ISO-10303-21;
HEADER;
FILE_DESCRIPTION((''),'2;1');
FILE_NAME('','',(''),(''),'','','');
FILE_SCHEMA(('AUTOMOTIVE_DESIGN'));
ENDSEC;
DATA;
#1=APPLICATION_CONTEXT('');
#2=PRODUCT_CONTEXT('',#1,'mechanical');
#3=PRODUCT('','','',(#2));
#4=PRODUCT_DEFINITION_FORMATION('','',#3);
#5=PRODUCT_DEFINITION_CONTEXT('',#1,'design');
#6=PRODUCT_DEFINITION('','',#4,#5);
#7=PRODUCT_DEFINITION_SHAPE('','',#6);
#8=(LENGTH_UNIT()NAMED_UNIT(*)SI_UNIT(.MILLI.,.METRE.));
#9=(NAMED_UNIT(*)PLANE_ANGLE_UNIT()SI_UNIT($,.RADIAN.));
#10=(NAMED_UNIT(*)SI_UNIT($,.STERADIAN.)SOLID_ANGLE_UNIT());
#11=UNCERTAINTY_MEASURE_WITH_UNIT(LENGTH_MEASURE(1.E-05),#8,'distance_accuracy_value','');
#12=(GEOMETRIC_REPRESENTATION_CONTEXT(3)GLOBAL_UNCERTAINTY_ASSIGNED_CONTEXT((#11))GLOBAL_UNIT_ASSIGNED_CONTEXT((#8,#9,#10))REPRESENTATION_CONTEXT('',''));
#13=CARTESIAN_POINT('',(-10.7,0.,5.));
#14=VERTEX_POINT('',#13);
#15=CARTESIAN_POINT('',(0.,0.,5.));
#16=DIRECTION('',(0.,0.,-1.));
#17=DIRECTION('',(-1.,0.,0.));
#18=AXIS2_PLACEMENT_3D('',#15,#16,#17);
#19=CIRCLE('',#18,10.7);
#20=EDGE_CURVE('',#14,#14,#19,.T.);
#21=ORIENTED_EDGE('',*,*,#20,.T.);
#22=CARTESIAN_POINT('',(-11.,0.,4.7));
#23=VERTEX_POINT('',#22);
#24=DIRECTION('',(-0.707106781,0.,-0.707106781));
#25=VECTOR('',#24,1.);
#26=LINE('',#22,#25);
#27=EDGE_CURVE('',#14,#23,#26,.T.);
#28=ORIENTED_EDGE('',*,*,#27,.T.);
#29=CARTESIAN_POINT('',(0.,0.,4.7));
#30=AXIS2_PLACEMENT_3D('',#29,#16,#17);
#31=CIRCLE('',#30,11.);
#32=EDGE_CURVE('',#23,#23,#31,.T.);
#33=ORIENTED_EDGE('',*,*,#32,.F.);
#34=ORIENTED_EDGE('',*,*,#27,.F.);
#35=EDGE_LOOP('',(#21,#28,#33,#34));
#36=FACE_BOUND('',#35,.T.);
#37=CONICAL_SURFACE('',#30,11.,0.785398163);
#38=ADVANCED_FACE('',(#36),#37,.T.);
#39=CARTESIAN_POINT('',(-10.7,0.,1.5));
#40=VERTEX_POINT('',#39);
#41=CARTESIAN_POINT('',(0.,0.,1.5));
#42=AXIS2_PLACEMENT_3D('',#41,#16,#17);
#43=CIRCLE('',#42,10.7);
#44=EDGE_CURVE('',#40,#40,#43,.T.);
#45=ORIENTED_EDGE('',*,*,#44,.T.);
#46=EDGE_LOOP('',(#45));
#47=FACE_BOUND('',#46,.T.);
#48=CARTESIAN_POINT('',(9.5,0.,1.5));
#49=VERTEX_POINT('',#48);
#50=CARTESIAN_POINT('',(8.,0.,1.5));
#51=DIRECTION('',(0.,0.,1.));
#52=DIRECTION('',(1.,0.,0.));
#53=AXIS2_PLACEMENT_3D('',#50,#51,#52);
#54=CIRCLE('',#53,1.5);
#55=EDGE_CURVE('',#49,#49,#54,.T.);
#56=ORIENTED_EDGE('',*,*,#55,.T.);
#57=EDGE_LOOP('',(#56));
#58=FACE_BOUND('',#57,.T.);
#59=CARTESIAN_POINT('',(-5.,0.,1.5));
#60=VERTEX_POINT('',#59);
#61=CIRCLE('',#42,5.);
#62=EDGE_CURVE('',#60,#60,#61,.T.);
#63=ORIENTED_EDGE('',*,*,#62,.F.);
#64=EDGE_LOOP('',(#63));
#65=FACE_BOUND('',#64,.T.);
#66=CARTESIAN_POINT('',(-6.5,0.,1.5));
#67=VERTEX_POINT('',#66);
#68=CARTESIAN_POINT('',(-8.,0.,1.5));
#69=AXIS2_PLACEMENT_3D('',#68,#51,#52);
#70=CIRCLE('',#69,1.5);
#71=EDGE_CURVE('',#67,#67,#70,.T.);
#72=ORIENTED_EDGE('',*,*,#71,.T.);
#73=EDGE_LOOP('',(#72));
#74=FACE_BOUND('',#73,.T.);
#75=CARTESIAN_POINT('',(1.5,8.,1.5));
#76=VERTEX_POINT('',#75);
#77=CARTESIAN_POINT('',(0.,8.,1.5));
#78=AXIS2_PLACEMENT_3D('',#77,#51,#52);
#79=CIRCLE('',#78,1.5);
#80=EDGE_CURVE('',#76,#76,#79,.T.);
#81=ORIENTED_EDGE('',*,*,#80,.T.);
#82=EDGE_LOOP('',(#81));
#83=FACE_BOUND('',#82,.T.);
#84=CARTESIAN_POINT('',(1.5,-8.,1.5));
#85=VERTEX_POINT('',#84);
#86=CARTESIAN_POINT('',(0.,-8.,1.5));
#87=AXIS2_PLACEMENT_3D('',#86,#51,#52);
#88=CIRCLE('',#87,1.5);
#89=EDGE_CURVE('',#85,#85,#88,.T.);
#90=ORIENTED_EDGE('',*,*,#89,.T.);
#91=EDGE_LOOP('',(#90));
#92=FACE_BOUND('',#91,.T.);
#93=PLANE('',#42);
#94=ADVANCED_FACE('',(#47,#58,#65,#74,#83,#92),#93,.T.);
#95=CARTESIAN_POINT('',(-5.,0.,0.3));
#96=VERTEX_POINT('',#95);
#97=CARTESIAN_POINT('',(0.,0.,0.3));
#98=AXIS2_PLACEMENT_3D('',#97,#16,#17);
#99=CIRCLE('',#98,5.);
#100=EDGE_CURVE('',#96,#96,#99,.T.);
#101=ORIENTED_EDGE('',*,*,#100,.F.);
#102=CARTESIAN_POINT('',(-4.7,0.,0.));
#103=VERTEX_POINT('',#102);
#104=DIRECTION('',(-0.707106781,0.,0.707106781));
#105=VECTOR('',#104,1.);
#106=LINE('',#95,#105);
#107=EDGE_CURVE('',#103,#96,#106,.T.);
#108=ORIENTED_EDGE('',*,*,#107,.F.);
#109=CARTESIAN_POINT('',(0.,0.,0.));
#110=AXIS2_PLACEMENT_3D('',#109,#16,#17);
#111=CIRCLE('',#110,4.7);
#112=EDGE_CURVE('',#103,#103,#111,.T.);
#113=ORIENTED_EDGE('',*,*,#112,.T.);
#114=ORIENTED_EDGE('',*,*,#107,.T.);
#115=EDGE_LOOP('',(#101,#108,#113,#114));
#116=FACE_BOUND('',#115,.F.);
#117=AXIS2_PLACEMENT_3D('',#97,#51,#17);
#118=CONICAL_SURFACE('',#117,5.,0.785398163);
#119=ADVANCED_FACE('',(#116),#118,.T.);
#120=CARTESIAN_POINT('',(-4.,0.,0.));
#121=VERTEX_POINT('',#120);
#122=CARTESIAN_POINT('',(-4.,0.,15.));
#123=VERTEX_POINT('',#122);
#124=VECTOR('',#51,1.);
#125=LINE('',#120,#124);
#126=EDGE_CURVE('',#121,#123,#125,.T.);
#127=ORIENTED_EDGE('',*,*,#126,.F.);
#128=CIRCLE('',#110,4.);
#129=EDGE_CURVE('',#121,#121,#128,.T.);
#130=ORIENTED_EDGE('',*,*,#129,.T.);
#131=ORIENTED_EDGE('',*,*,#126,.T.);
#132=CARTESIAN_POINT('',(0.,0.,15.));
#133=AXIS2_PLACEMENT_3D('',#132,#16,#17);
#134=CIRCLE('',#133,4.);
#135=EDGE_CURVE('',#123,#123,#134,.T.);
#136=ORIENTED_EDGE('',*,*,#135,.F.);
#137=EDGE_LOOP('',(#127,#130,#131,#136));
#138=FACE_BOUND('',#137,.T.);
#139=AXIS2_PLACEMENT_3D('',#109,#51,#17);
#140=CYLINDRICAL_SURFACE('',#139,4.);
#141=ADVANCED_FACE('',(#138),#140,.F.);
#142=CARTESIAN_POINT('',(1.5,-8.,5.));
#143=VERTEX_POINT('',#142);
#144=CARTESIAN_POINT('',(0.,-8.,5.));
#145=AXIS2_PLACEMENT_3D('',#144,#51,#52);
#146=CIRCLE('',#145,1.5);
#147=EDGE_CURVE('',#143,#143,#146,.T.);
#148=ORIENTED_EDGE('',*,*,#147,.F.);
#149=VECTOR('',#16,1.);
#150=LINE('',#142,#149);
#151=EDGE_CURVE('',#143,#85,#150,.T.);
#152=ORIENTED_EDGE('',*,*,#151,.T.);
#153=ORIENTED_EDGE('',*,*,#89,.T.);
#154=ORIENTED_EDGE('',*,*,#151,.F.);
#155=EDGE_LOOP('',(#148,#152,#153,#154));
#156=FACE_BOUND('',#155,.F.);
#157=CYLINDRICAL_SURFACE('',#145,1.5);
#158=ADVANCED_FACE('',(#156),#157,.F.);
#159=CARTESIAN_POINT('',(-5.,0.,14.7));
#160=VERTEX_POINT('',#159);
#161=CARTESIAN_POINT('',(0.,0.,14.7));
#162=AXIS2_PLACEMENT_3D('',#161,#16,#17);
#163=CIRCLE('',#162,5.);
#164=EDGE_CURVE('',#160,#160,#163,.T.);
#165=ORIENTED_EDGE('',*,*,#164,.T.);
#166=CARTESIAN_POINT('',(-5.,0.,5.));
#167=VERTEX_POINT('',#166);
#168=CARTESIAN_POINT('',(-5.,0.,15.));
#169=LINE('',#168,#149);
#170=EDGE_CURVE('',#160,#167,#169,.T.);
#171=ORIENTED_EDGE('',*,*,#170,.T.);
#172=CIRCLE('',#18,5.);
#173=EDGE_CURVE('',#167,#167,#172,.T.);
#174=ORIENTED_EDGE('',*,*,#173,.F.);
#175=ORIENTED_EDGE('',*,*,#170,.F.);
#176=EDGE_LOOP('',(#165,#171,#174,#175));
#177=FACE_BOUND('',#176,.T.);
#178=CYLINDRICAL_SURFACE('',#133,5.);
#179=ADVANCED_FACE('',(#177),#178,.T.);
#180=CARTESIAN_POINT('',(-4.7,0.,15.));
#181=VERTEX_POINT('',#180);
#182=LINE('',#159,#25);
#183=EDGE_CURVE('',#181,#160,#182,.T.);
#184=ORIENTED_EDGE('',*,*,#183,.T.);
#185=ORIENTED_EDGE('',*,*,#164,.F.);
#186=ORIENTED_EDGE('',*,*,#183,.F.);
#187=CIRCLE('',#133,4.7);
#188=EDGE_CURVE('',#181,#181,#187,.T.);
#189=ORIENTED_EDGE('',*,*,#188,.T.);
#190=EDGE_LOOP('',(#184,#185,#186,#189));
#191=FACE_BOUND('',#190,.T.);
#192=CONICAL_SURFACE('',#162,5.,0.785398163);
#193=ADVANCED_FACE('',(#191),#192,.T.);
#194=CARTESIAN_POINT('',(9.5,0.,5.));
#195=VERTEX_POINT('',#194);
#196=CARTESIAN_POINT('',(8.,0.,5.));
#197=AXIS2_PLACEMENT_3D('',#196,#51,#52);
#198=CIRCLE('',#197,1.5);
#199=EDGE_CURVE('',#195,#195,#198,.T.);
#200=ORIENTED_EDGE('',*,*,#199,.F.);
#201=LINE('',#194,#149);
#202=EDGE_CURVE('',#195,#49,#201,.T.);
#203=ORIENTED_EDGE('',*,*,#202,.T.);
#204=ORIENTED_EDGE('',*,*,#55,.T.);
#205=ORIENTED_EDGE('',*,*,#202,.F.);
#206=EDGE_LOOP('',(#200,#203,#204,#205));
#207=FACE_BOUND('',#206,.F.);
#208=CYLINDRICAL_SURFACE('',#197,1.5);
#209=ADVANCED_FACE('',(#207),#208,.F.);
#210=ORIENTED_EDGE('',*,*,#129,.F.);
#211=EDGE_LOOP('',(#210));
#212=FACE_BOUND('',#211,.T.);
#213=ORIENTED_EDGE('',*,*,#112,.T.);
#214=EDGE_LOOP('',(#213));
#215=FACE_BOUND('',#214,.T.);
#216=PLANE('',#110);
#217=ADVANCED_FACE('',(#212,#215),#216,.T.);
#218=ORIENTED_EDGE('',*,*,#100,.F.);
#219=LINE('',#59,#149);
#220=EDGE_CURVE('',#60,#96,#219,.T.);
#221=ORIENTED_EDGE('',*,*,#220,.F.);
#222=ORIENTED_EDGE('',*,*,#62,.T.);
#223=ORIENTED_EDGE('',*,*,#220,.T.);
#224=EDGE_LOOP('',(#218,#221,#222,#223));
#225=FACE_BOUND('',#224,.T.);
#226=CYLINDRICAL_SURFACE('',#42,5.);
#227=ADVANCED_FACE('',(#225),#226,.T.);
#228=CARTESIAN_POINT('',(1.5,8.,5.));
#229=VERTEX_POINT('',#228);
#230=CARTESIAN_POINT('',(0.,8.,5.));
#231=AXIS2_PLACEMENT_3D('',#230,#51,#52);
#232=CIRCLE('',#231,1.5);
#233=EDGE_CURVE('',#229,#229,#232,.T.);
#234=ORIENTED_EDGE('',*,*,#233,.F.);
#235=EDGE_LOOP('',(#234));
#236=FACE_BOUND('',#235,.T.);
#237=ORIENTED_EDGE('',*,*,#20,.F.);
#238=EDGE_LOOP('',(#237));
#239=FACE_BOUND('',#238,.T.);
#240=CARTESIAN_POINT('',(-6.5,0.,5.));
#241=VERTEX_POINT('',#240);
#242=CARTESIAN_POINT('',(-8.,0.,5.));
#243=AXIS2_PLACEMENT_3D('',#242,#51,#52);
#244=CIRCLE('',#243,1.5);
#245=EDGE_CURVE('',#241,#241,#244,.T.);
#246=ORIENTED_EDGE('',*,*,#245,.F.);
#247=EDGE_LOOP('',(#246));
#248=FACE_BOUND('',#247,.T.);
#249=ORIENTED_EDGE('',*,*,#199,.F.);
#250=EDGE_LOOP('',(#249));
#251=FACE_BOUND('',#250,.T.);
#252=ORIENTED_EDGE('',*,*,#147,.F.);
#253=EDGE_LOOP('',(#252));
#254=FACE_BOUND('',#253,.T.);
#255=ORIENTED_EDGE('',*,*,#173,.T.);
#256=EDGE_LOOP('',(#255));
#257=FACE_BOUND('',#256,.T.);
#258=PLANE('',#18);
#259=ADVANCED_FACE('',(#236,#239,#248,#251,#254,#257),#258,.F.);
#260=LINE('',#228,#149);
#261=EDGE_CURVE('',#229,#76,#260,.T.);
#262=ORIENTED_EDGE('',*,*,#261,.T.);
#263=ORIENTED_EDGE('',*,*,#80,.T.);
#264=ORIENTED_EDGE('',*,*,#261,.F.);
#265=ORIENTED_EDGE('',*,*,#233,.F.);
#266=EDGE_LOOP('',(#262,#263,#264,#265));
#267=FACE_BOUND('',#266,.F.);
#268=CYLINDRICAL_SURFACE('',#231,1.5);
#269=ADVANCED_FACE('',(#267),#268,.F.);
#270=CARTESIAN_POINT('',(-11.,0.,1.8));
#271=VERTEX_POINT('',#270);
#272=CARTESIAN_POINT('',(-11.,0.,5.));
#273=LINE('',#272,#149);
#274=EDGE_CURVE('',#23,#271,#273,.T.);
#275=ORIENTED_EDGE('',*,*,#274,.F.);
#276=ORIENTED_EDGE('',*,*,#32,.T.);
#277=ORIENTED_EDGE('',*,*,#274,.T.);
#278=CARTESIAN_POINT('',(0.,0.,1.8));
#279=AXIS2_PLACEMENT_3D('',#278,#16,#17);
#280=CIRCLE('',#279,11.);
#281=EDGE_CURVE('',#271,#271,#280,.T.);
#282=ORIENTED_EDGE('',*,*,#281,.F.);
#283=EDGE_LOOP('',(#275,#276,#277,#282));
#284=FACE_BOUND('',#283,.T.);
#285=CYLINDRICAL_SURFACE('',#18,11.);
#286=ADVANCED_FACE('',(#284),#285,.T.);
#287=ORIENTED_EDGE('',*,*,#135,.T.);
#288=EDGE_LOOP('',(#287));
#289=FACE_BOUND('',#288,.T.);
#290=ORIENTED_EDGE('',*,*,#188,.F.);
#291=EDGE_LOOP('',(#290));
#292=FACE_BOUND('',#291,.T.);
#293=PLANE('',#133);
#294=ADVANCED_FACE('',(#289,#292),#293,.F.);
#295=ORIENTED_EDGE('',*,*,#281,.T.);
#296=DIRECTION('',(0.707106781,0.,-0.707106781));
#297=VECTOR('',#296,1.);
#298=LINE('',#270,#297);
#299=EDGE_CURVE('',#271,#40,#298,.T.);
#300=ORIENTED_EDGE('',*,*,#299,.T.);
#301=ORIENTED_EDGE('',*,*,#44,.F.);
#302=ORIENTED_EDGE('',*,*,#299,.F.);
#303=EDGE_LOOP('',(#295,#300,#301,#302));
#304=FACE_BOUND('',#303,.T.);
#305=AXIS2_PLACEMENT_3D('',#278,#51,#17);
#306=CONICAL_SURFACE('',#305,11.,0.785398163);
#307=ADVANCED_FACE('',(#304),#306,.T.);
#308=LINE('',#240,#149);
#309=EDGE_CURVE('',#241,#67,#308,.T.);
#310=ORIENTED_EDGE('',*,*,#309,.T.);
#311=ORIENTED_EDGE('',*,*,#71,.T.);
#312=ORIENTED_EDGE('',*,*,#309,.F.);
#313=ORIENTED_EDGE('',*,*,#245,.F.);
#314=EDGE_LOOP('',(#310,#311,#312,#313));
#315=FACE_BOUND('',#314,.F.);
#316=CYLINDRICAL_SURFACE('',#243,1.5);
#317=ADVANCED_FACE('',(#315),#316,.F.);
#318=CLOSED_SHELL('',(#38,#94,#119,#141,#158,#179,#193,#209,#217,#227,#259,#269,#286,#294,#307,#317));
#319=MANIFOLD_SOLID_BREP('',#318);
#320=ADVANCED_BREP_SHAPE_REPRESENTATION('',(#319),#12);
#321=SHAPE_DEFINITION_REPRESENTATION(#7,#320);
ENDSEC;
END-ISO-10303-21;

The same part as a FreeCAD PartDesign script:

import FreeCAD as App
import Part
import Sketcher
from FreeCAD import Vector
Q = App.Units.Quantity


def edges_at(feature, points):
    """Names of the edges that pass closest to the given points."""
    edges = feature.Shape.Edges
    near = lambda p: min(range(len(edges)), key=lambda i: edges[i].distToShape(Part.Vertex(*p))[0])
    return sorted({f"Edge{near(p) + 1}" for p in points})

doc = App.newDocument("Part")
body = doc.addObject("PartDesign::Body", "Body")

sketch1 = body.newObject("Sketcher::SketchObject", "Sketch")
sketch1.AttachmentSupport = (doc.getObject("XZ_Plane"), [""])
sketch1.MapMode = "FlatFace"
sketch1.addGeometry(Part.LineSegment(Vector(-5, 0, 0), Vector(-4, 0, 0)), False)
sketch1.addGeometry(Part.LineSegment(Vector(-4, 0, 0), Vector(-4, 15, 0)), False)
sketch1.addGeometry(Part.LineSegment(Vector(-4, 15, 0), Vector(-5, 15, 0)), False)
sketch1.addGeometry(Part.LineSegment(Vector(-5, 15, 0), Vector(-5, 5, 0)), False)
sketch1.addGeometry(Part.LineSegment(Vector(-5, 5, 0), Vector(-11, 5, 0)), False)
sketch1.addGeometry(Part.LineSegment(Vector(-11, 5, 0), Vector(-11, 1.5, 0)), False)
sketch1.addGeometry(Part.LineSegment(Vector(-11, 1.5, 0), Vector(-5, 1.5, 0)), False)
sketch1.addGeometry(Part.LineSegment(Vector(-5, 1.5, 0), Vector(-5, 0, 0)), False)
sketch1.addConstraint(Sketcher.Constraint("Coincident", 0, 2, 1, 1))
sketch1.addConstraint(Sketcher.Constraint("Coincident", 1, 2, 2, 1))
sketch1.addConstraint(Sketcher.Constraint("Coincident", 2, 2, 3, 1))
sketch1.addConstraint(Sketcher.Constraint("Coincident", 3, 2, 4, 1))
sketch1.addConstraint(Sketcher.Constraint("Coincident", 4, 2, 5, 1))
sketch1.addConstraint(Sketcher.Constraint("Coincident", 5, 2, 6, 1))
sketch1.addConstraint(Sketcher.Constraint("Coincident", 6, 2, 7, 1))
sketch1.addConstraint(Sketcher.Constraint("Coincident", 7, 2, 0, 1))
sketch1.addConstraint(Sketcher.Constraint("Horizontal", 0))
sketch1.addConstraint(Sketcher.Constraint("Vertical", 1))
sketch1.addConstraint(Sketcher.Constraint("Horizontal", 2))
sketch1.addConstraint(Sketcher.Constraint("Vertical", 3))
sketch1.addConstraint(Sketcher.Constraint("Horizontal", 4))
sketch1.addConstraint(Sketcher.Constraint("Vertical", 5))
sketch1.addConstraint(Sketcher.Constraint("Horizontal", 6))
sketch1.addConstraint(Sketcher.Constraint("Vertical", 7))
sketch1.addConstraint(Sketcher.Constraint("PointOnObject", 0, 2, -1))
sketch1.addConstraint(Sketcher.Constraint("Vertical", 3, 2, 6, 2))
sketch1.addConstraint(Sketcher.Constraint("DistanceX", 0, 1, 0, 2, Q("1 mm")))
sketch1.addConstraint(Sketcher.Constraint("DistanceX", 4, 2, 4, 1, Q("6 mm")))
sketch1.addConstraint(Sketcher.Constraint("DistanceY", 1, 1, 1, 2, Q("15 mm")))
sketch1.addConstraint(Sketcher.Constraint("DistanceY", 3, 2, 3, 1, Q("10 mm")))
sketch1.addConstraint(Sketcher.Constraint("DistanceY", 5, 2, 5, 1, Q("3.5 mm")))
sketch1.addConstraint(Sketcher.Constraint("DistanceX", 0, 2, -1, 1, Q("4 mm")))
revolution = body.newObject("PartDesign::Revolution", "Revolution")
revolution.Profile = sketch1
revolution.ReferenceAxis = (sketch1, ["V_Axis"])
revolution.Angle = 360
doc.recompute()

chamfer = body.newObject("PartDesign::Chamfer", "Chamfer")
chamfer.Base = (revolution, edges_at(revolution, [
    (11, 0, 5),
    (5, 0, 15),
    (11, 0, 1.5),
    (5, 0, 0),
]))
chamfer.Size = 0.3

sketch2 = body.newObject("Sketcher::SketchObject", "Sketch001")
sketch2.AttachmentSupport = (doc.getObject("XY_Plane"), [""])
sketch2.MapMode = "FlatFace"
sketch2.AttachmentOffset = App.Placement(Vector(0, 0, 5), App.Rotation())
sketch2.addGeometry(Part.Circle(Vector(0, 8, 0), Vector(0, 0, 1), 1.5), False)
sketch2.addGeometry(Part.Circle(Vector(-8, 0, 0), Vector(0, 0, 1), 1.5), False)
sketch2.addGeometry(Part.Circle(Vector(0, -8, 0), Vector(0, 0, 1), 1.5), False)
sketch2.addGeometry(Part.Circle(Vector(8, 0, 0), Vector(0, 0, 1), 1.5), False)
sketch2.addConstraint(Sketcher.Constraint("Equal", 0, 1))
sketch2.addConstraint(Sketcher.Constraint("Equal", 1, 2))
sketch2.addConstraint(Sketcher.Constraint("Equal", 2, 3))
sketch2.addConstraint(Sketcher.Constraint("Symmetric", 0, 3, 2, 3, -1, 1))
sketch2.addConstraint(Sketcher.Constraint("Symmetric", 1, 3, 3, 3, -1, 1))
sketch2.addConstraint(Sketcher.Constraint("PointOnObject", 0, 3, -2))
sketch2.addConstraint(Sketcher.Constraint("PointOnObject", 1, 3, -1))
sketch2.addConstraint(Sketcher.Constraint("Diameter", 0, Q("3 mm")))
sketch2.addConstraint(Sketcher.Constraint("DistanceY", -1, 1, 0, 3, Q("8 mm")))
sketch2.addConstraint(Sketcher.Constraint("DistanceX", 1, 3, -1, 1, Q("8 mm")))
pocket1 = body.newObject("PartDesign::Pocket", "Pocket")
pocket1.Profile = sketch2
pocket1.Length = 25

doc.recompute()
